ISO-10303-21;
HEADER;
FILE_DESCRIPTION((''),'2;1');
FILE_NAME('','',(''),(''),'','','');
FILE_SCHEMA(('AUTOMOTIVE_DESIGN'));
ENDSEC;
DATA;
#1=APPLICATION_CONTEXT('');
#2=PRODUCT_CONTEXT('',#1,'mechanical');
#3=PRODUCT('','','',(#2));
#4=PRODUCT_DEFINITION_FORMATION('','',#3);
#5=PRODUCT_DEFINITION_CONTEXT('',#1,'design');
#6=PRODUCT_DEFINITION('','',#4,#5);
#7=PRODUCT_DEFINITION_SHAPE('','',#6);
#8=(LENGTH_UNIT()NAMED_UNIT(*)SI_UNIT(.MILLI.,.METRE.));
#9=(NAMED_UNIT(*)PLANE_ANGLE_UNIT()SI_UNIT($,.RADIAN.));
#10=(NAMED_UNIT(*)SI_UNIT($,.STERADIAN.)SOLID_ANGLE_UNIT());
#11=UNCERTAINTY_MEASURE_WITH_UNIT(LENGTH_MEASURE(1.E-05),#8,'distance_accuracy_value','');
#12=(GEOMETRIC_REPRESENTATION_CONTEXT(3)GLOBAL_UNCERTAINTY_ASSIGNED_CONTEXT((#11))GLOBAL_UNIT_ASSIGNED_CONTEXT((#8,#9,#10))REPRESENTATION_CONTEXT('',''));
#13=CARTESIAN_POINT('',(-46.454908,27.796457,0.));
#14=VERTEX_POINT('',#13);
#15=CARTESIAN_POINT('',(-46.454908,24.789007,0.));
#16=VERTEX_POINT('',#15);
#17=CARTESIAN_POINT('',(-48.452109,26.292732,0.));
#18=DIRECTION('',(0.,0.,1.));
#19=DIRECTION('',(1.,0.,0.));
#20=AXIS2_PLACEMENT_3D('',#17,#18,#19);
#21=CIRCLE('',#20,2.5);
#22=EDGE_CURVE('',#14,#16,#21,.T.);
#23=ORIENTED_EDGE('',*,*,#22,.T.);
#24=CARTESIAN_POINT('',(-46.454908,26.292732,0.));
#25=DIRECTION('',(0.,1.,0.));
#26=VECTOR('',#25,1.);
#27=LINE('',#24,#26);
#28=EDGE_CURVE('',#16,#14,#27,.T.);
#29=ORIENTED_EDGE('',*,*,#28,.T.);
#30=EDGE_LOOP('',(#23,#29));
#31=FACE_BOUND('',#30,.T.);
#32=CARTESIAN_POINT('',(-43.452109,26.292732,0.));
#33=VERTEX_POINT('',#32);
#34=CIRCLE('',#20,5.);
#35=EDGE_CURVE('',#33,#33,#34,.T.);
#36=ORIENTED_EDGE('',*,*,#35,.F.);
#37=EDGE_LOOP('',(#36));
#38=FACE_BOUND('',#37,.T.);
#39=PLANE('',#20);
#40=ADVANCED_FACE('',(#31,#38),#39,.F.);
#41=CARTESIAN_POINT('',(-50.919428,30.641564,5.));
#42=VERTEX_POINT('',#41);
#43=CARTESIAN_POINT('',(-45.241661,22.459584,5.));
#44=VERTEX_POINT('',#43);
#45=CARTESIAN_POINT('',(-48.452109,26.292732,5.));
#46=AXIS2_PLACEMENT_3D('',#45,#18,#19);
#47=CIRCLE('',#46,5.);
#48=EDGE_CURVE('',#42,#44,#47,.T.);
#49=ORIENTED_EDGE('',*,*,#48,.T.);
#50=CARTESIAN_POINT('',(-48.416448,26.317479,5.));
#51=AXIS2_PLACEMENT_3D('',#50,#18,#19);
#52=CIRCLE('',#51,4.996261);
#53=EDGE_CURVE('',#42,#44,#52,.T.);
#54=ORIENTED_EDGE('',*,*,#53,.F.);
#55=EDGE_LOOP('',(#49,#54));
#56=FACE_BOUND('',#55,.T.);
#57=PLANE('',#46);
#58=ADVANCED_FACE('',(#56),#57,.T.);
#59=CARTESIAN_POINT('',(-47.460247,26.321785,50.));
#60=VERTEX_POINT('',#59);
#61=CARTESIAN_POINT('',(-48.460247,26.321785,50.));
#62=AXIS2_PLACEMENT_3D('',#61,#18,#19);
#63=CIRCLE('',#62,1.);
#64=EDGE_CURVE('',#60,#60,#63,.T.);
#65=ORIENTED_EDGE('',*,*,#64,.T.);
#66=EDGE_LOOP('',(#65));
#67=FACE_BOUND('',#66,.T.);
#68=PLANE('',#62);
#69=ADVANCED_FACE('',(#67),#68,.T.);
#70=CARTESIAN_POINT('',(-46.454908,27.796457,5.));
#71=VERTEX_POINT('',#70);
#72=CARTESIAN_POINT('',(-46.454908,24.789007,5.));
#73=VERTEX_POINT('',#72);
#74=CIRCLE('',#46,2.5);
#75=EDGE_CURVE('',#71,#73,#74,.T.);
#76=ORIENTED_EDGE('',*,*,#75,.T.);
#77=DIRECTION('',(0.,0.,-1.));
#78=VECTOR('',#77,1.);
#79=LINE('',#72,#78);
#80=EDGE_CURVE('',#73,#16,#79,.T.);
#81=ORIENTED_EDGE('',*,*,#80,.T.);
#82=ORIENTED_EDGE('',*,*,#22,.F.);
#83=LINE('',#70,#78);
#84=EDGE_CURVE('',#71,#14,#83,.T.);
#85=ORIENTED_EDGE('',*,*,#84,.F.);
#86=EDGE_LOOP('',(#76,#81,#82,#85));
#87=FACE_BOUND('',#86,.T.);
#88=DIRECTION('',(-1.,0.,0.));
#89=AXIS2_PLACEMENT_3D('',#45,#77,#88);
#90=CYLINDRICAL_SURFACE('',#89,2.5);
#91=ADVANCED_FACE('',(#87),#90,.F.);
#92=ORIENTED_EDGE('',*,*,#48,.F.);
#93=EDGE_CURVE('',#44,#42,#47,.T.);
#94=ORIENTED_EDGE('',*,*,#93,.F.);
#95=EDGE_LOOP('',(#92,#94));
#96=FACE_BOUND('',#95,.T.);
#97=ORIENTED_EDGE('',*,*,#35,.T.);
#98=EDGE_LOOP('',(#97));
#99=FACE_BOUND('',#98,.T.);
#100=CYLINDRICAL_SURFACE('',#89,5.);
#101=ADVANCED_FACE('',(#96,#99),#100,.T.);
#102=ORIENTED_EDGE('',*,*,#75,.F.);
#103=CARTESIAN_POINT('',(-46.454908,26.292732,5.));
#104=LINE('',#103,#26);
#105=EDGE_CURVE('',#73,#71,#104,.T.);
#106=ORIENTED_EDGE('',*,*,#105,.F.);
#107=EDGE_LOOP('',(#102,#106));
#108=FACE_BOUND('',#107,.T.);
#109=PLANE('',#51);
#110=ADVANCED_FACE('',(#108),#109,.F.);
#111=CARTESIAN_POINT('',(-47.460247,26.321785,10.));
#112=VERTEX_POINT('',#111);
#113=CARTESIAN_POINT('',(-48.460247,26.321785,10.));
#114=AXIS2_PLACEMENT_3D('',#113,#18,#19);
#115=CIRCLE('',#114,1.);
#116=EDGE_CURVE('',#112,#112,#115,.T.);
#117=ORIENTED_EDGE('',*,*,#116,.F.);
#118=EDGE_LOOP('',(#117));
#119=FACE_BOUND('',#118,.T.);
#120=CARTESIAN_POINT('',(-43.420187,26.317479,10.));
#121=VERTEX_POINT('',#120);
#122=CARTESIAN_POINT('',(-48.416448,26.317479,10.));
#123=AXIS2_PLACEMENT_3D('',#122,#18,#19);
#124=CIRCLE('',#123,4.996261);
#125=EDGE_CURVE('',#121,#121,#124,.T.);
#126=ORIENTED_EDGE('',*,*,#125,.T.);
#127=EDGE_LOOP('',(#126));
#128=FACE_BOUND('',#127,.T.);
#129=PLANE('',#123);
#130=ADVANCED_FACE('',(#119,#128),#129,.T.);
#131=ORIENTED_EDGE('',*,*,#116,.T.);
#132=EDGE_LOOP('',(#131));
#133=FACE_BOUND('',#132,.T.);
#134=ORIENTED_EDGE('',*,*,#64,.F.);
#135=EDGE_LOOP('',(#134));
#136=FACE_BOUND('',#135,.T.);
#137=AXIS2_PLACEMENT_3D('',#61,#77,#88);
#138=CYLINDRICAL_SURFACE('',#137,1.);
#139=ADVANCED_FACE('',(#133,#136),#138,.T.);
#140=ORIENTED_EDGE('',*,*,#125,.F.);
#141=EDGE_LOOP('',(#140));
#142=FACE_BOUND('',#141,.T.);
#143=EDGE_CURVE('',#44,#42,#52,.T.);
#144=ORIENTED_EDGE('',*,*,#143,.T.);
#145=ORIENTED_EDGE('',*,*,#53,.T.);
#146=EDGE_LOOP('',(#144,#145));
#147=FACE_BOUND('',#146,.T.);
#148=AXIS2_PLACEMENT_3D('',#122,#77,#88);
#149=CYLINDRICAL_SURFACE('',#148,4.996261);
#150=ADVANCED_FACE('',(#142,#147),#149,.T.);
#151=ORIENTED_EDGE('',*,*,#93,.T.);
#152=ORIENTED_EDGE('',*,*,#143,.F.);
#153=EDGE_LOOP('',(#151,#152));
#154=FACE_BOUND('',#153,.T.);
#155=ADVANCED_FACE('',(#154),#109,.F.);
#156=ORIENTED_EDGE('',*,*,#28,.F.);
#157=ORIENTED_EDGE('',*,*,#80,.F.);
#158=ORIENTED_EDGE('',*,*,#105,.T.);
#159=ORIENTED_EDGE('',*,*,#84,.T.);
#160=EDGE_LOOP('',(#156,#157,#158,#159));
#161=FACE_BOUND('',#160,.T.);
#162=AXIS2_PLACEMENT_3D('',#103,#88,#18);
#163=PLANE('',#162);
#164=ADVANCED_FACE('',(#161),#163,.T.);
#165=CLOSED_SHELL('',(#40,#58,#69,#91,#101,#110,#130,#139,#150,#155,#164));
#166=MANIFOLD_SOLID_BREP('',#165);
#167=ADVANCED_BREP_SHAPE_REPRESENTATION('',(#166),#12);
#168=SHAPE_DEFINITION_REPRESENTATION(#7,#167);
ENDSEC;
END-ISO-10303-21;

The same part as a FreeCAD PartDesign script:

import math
import FreeCAD as App
import Part
import Sketcher

doc = App.newDocument("Part")
body = doc.addObject("PartDesign::Body", "Body")

# Sketch on XY plane
sketch1 = doc.addObject("Sketcher::SketchObject", "Sketch")
body.addObject(sketch1)
sketch1.AttachmentSupport = (doc.XY_Plane, [""])
sketch1.MapMode = "FlatFace"
sketch1.addGeometry([
    Part.Circle(App.Vector(-48.452109, 26.292732, 0), App.Vector(0, 0, 1), 5),
    Part.ArcOfCircle(Part.Circle(App.Vector(-48.452109, 26.292732, 0), App.Vector(0, 0, 1), 2.5), math.radians(36.976678), math.radians(323.023322)),
    Part.LineSegment(App.Vector(-46.454908, 27.796457, 0), App.Vector(-46.454908, 24.789007, 0)),
], False)
sketch1.addConstraint([
    Sketcher.Constraint("Coincident", 1, 1, 2, 1),
    Sketcher.Constraint("Coincident", 2, 2, 1, 2),
    Sketcher.Constraint("Vertical", 2),
    Sketcher.Constraint("Coincident", 1, 3, 0, 3),
    Sketcher.Constraint("Diameter", 0, 10.0),
    Sketcher.Constraint("Radius", 1, 2.5),
    Sketcher.Constraint("DistanceY", 2, 2, 2, 1, 3.007449),
    Sketcher.Constraint("DistanceX", 0, 3, -1, 1, 48.452109),
    Sketcher.Constraint("DistanceY", -1, 1, 0, 3, 26.292732),
])
pad1 = doc.addObject("PartDesign::Pad", "Pad")
body.addObject(pad1)
pad1.Profile = sketch1
pad1.Length = 5

# Sketch on XY plane
sketch2 = doc.addObject("Sketcher::SketchObject", "Sketch001")
body.addObject(sketch2)
sketch2.AttachmentSupport = (doc.XY_Plane, [""])
sketch2.MapMode = "FlatFace"
sketch2.AttachmentOffset = App.Placement(App.Vector(0, 0, 5), App.Rotation())
sketch2.addGeometry(Part.Circle(App.Vector(-48.416448, 26.317479, 0), App.Vector(0, 0, 1), 4.996261), False)
sketch2.addConstraint([
    Sketcher.Constraint("Diameter", 0, 9.992522),
    Sketcher.Constraint("DistanceX", 0, 3, -1, 1, 48.416448),
    Sketcher.Constraint("DistanceY", -1, 1, 0, 3, 26.317479),
])
pad2 = doc.addObject("PartDesign::Pad", "Pad001")
body.addObject(pad2)
pad2.Profile = sketch2
pad2.Length = 5

# Sketch on XY plane
sketch3 = doc.addObject("Sketcher::SketchObject", "Sketch002")
body.addObject(sketch3)
sketch3.AttachmentSupport = (doc.XY_Plane, [""])
sketch3.MapMode = "FlatFace"
sketch3.AttachmentOffset = App.Placement(App.Vector(0, 0, 10), App.Rotation())
sketch3.addGeometry(Part.Circle(App.Vector(-48.460247, 26.321785, 0), App.Vector(0, 0, 1), 1), False)
sketch3.addConstraint([
    Sketcher.Constraint("Diameter", 0, 2.0),
    Sketcher.Constraint("DistanceX", 0, 3, -1, 1, 48.460247),
    Sketcher.Constraint("DistanceY", -1, 1, 0, 3, 26.321785),
])
pad3 = doc.addObject("PartDesign::Pad", "Pad002")
body.addObject(pad3)
pad3.Profile = sketch3
pad3.Length = 40

doc.recompute()
